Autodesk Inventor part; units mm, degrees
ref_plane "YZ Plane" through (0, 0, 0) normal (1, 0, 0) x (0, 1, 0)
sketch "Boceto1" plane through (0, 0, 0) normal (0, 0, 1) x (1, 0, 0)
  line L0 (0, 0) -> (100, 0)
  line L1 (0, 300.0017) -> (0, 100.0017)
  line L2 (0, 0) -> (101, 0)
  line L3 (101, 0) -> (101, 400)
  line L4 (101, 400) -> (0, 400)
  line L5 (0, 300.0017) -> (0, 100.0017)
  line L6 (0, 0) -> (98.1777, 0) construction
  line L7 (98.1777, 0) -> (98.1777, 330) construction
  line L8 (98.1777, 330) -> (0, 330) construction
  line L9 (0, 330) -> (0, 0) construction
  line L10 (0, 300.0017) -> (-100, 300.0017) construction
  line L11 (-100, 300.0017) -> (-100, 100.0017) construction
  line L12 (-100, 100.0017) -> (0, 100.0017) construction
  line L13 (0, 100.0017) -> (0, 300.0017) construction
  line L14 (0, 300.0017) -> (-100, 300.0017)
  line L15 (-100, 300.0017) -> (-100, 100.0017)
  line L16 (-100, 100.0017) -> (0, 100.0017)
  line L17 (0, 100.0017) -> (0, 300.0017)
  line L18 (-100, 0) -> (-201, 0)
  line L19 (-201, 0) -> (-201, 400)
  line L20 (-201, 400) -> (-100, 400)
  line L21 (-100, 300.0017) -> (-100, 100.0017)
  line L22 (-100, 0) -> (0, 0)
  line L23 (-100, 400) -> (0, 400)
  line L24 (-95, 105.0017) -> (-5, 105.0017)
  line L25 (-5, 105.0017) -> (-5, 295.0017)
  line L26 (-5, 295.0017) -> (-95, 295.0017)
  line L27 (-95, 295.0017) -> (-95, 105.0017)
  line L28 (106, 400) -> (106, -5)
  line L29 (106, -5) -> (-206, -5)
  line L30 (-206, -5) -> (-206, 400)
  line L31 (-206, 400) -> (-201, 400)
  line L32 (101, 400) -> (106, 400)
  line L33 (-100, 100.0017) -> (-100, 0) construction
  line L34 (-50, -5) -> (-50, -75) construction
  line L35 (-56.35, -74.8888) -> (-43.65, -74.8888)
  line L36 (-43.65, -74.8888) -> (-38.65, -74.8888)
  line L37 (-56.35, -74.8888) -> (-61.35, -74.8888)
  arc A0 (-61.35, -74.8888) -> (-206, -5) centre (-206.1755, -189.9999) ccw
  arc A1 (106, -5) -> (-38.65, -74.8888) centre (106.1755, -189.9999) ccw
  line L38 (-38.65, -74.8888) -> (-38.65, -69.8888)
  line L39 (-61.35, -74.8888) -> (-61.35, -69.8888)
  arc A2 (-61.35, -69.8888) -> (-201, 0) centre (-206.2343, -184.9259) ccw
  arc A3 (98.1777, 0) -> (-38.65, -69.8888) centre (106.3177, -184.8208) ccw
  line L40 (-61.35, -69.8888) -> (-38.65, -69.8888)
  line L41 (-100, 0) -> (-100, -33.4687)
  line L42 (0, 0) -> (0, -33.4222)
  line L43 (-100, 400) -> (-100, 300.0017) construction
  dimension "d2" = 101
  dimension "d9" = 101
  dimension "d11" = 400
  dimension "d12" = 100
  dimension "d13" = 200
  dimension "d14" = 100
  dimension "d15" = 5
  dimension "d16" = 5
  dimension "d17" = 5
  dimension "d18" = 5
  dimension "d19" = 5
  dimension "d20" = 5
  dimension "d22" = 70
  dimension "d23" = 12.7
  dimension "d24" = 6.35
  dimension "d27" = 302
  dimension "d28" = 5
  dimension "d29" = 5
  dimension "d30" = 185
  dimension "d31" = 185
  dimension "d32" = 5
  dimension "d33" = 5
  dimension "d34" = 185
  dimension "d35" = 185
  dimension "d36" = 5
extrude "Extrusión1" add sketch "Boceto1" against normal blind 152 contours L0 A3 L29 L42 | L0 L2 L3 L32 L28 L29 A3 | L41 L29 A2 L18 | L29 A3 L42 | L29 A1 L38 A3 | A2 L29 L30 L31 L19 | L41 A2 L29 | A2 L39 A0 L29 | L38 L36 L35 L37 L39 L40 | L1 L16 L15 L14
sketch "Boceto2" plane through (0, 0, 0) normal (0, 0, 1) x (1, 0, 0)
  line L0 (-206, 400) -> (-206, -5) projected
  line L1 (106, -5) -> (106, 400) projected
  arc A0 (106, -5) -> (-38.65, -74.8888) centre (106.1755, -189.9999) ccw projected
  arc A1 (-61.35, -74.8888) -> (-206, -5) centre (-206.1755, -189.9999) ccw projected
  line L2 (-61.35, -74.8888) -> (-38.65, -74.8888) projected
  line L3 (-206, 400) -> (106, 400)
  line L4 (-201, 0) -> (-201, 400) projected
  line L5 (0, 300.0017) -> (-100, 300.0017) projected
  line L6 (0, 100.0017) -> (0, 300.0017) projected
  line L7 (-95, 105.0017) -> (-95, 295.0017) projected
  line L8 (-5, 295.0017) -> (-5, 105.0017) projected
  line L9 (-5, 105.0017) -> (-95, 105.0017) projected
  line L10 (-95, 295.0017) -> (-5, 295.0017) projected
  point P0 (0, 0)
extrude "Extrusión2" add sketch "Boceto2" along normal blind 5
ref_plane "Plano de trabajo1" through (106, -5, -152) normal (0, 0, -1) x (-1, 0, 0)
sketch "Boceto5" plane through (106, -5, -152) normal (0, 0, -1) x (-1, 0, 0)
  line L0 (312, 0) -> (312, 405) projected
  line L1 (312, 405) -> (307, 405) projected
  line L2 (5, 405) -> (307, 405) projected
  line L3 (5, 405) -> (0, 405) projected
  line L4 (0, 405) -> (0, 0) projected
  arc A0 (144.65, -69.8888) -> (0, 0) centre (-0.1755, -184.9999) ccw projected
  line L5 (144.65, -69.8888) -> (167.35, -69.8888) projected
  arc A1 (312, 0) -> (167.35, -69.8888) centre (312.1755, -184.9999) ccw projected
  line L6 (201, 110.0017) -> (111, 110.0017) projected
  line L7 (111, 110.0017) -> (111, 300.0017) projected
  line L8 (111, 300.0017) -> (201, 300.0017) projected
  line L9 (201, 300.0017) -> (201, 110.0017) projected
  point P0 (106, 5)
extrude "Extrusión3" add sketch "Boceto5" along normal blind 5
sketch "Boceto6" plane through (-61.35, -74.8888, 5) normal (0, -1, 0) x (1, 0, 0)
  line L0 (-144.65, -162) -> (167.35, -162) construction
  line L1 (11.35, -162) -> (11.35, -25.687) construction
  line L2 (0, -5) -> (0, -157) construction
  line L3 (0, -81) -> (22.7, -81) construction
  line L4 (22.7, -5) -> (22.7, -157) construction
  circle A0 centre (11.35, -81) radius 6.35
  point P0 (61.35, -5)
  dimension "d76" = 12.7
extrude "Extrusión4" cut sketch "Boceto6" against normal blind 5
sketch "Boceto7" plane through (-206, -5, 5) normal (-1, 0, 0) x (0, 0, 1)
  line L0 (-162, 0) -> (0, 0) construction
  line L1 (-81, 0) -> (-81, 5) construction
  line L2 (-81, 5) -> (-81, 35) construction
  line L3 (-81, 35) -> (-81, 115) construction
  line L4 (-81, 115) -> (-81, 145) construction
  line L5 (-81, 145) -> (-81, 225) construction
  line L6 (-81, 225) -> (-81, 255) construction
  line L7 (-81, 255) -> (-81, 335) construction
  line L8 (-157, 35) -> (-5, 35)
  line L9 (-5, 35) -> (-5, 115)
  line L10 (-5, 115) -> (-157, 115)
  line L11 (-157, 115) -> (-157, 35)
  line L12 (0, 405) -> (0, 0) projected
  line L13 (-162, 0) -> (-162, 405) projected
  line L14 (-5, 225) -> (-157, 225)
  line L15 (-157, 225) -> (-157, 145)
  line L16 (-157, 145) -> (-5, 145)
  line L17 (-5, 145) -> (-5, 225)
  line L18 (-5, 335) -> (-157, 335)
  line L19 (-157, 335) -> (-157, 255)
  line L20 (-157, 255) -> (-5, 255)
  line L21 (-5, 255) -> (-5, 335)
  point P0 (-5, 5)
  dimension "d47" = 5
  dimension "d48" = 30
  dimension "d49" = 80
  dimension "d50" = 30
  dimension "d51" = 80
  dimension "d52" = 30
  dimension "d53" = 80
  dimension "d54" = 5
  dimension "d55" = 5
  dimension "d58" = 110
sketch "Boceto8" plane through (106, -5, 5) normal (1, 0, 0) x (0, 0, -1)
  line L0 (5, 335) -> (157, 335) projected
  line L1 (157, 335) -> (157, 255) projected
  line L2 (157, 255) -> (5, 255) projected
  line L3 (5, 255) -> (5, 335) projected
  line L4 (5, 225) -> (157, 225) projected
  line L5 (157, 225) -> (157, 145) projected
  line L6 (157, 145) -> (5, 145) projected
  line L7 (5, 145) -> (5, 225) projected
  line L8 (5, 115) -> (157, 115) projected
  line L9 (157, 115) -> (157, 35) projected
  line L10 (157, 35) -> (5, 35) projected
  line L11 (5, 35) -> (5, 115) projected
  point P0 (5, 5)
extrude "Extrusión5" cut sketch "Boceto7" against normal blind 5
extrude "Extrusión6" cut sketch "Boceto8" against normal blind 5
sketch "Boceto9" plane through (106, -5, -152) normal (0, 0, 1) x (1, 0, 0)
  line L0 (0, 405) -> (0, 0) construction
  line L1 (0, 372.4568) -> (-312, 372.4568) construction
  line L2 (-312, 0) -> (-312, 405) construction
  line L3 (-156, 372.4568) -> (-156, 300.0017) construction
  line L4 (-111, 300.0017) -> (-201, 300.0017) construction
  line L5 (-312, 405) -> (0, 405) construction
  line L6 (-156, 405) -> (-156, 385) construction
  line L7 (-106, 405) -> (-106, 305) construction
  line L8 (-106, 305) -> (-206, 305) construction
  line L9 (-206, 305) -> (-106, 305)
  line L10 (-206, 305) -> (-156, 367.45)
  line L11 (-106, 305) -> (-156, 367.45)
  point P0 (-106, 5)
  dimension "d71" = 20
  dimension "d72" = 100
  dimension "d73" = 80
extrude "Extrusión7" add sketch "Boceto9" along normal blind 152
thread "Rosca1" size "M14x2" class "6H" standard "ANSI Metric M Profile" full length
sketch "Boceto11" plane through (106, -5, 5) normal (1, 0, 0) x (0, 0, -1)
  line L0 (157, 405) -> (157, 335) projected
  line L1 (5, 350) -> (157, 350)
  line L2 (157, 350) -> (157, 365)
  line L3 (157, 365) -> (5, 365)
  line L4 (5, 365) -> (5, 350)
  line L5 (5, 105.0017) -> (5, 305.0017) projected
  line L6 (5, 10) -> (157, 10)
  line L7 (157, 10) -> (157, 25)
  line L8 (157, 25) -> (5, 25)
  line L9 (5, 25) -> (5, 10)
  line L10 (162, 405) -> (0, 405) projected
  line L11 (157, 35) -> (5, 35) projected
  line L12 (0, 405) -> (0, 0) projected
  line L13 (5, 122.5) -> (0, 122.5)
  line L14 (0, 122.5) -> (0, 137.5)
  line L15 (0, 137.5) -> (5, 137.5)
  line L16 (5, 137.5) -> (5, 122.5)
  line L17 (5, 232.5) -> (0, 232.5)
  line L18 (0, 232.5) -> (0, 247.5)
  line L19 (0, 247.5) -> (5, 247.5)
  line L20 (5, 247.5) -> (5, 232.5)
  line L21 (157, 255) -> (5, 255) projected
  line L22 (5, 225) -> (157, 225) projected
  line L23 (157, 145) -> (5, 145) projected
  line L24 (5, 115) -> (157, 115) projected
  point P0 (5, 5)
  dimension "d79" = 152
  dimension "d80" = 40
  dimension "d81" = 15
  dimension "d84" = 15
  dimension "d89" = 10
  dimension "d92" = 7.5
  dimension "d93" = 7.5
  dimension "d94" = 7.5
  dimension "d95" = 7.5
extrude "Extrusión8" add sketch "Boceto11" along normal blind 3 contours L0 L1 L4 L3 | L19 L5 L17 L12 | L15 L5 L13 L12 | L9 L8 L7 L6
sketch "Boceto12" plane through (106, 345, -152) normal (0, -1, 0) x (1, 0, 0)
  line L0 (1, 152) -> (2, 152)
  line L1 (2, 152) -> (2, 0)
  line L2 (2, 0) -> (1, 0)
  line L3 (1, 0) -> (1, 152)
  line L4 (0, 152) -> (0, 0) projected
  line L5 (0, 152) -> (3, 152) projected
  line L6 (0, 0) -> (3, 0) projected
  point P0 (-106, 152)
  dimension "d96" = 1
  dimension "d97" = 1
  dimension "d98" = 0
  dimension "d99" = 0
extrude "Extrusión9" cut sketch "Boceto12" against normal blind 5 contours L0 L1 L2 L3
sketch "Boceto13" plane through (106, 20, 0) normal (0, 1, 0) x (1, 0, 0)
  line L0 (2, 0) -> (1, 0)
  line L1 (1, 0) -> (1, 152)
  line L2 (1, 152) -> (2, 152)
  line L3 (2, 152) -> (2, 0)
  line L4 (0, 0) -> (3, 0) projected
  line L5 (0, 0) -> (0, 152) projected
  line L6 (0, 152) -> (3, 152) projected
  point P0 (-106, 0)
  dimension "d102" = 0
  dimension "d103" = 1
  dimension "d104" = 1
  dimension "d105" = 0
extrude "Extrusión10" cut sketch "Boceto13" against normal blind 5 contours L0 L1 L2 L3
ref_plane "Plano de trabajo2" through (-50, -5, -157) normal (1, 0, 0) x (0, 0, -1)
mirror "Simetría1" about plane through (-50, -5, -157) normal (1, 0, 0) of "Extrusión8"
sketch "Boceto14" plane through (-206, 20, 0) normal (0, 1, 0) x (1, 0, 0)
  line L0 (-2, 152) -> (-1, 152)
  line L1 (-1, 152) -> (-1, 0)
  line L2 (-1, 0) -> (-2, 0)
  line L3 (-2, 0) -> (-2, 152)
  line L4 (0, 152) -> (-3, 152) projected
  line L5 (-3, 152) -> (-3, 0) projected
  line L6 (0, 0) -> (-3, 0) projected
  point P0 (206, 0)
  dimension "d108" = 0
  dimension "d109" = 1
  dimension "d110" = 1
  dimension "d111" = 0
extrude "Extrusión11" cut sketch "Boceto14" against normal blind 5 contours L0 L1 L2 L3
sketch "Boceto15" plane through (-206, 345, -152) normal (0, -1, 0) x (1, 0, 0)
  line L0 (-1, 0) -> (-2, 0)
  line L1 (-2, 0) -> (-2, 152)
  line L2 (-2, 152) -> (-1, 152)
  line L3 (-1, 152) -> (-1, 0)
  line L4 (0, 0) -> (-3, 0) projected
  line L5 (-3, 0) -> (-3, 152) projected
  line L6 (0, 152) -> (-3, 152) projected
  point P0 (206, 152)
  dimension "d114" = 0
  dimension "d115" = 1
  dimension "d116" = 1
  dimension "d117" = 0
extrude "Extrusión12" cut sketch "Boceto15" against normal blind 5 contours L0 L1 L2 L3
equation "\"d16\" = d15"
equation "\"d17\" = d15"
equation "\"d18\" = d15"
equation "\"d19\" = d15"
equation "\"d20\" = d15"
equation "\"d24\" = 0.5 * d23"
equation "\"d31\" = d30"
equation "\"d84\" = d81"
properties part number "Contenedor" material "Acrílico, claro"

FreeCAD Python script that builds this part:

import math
import FreeCAD as App
import Part
import Sketcher

V = App.Vector

doc = App.newDocument("Part")
body = doc.addObject("PartDesign::Body", "Body")
body.AllowCompound = True

# Sketch on XY plane
sketch1 = body.newObject("Sketcher::SketchObject", "Sketch")
sketch1.AttachmentSupport = (doc.getObject("XY_Plane"), [""])
sketch1.MapMode = "FlatFace"
sketch1.addGeometry(Part.LineSegment(V(0, 0, 0), V(0, -33, 0)), False)
sketch1.addGeometry(Part.ArcOfCircle(Part.Circle(V(106, -185, 0), V(0, 0, 1), 185), math.radians(125.08), math.radians(141.59)), False)
sketch1.addGeometry(Part.LineSegment(V(-39, -70, 0), V(-61, -70, 0)), False)
sketch1.addGeometry(Part.ArcOfCircle(Part.Circle(V(-206, -185, 0), V(0, 0, 1), 185), math.radians(38.45), math.radians(54.95)), False)
sketch1.addGeometry(Part.LineSegment(V(-100, -33, 0), V(-100, 0, 0)), False)
sketch1.addGeometry(Part.LineSegment(V(-100, 0, 0), V(-201, 0, 0)), False)
sketch1.addGeometry(Part.LineSegment(V(-201, 0, 0), V(-201, 400, 0)), False)
sketch1.addGeometry(Part.LineSegment(V(-201, 400, 0), V(-206, 400, 0)), False)
sketch1.addGeometry(Part.LineSegment(V(-206, 400, 0), V(-206, -5, 0)), False)
sketch1.addGeometry(Part.ArcOfCircle(Part.Circle(V(-206, -190, 0), V(0, 0, 1), 185), math.radians(38), math.radians(90)), False)
sketch1.addGeometry(Part.LineSegment(V(-61, -75, 0), V(-39, -75, 0)), False)
sketch1.addGeometry(Part.ArcOfCircle(Part.Circle(V(106, -190, 0), V(0, 0, 1), 185), math.radians(90), math.radians(142)), False)
sketch1.addGeometry(Part.LineSegment(V(106, -5, 0), V(106, 400, 0)), False)
sketch1.addGeometry(Part.LineSegment(V(106, 400, 0), V(101, 400, 0)), False)
sketch1.addGeometry(Part.LineSegment(V(101, 400, 0), V(101, 0, 0)), False)
sketch1.addGeometry(Part.LineSegment(V(101, 0, 0), V(0, 0, 0)), False)
sketch1.addGeometry(Part.LineSegment(V(0, 100, 0), V(0, 300, 0)), False)
sketch1.addGeometry(Part.LineSegment(V(0, 300, 0), V(-100, 300, 0)), False)
sketch1.addGeometry(Part.LineSegment(V(-100, 300, 0), V(-100, 100, 0)), False)
sketch1.addGeometry(Part.LineSegment(V(-100, 100, 0), V(0, 100, 0)), False)
sketch1.addGeometry(Part.LineSegment(V(-5, 105, 0), V(-95, 105, 0)), False)
sketch1.addGeometry(Part.LineSegment(V(-95, 105, 0), V(-95, 295, 0)), False)
sketch1.addGeometry(Part.LineSegment(V(-95, 295, 0), V(-5, 295, 0)), False)
sketch1.addGeometry(Part.LineSegment(V(-5, 295, 0), V(-5, 105, 0)), False)
sketch1.addConstraint(Sketcher.Constraint("Coincident", 0, 2, 1, 1))
sketch1.addConstraint(Sketcher.Constraint("Coincident", 1, 2, 2, 1))
sketch1.addConstraint(Sketcher.Constraint("Coincident", 2, 2, 3, 1))
sketch1.addConstraint(Sketcher.Constraint("Coincident", 3, 2, 4, 1))
sketch1.addConstraint(Sketcher.Constraint("Coincident", 4, 2, 5, 1))
sketch1.addConstraint(Sketcher.Constraint("Coincident", 5, 2, 6, 1))
sketch1.addConstraint(Sketcher.Constraint("Coincident", 6, 2, 7, 1))
sketch1.addConstraint(Sketcher.Constraint("Coincident", 7, 2, 8, 1))
sketch1.addConstraint(Sketcher.Constraint("Coincident", 8, 2, 9, 2))
sketch1.addConstraint(Sketcher.Constraint("Coincident", 9, 1, 10, 1))
sketch1.addConstraint(Sketcher.Constraint("Coincident", 10, 2, 11, 2))
sketch1.addConstraint(Sketcher.Constraint("Coincident", 11, 1, 12, 1))
sketch1.addConstraint(Sketcher.Constraint("Coincident", 12, 2, 13, 1))
sketch1.addConstraint(Sketcher.Constraint("Coincident", 13, 2, 14, 1))
sketch1.addConstraint(Sketcher.Constraint("Coincident", 14, 2, 15, 1))
sketch1.addConstraint(Sketcher.Constraint("Coincident", 15, 2, 0, 1))
sketch1.addConstraint(Sketcher.Constraint("Coincident", 16, 2, 17, 1))
sketch1.addConstraint(Sketcher.Constraint("Coincident", 17, 2, 18, 1))
sketch1.addConstraint(Sketcher.Constraint("Coincident", 18, 2, 19, 1))
sketch1.addConstraint(Sketcher.Constraint("Coincident", 19, 2, 16, 1))
sketch1.addConstraint(Sketcher.Constraint("Coincident", 20, 2, 21, 1))
sketch1.addConstraint(Sketcher.Constraint("Coincident", 21, 2, 22, 1))
sketch1.addConstraint(Sketcher.Constraint("Coincident", 22, 2, 23, 1))
sketch1.addConstraint(Sketcher.Constraint("Coincident", 23, 2, 20, 1))
sketch1.addConstraint(Sketcher.Constraint("Vertical", 0))
sketch1.addConstraint(Sketcher.Constraint("Horizontal", 2))
sketch1.addConstraint(Sketcher.Constraint("Vertical", 4))
sketch1.addConstraint(Sketcher.Constraint("Horizontal", 5))
sketch1.addConstraint(Sketcher.Constraint("Vertical", 6))
sketch1.addConstraint(Sketcher.Constraint("Horizontal", 7))
sketch1.addConstraint(Sketcher.Constraint("Vertical", 8))
sketch1.addConstraint(Sketcher.Constraint("Horizontal", 10))
sketch1.addConstraint(Sketcher.Constraint("Vertical", 12))
sketch1.addConstraint(Sketcher.Constraint("Horizontal", 13))
sketch1.addConstraint(Sketcher.Constraint("Vertical", 14))
sketch1.addConstraint(Sketcher.Constraint("Horizontal", 15))
sketch1.addConstraint(Sketcher.Constraint("Vertical", 16))
sketch1.addConstraint(Sketcher.Constraint("Horizontal", 17))
sketch1.addConstraint(Sketcher.Constraint("Vertical", 18))
sketch1.addConstraint(Sketcher.Constraint("Horizontal", 19))
sketch1.addConstraint(Sketcher.Constraint("Horizontal", 20))
sketch1.addConstraint(Sketcher.Constraint("Vertical", 21))
sketch1.addConstraint(Sketcher.Constraint("Horizontal", 22))
sketch1.addConstraint(Sketcher.Constraint("Vertical", 23))
sketch1.addConstraint(Sketcher.Constraint("Coincident", 15, 2, -1, 1))
sketch1.addConstraint(Sketcher.Constraint("Equal", 1, 3))
sketch1.addConstraint(Sketcher.Constraint("Equal", 3, 9))
sketch1.addConstraint(Sketcher.Constraint("Equal", 9, 11))
sketch1.addConstraint(Sketcher.Constraint("PointOnObject", 4, 2, -1))
sketch1.addConstraint(Sketcher.Constraint("PointOnObject", 16, 2, -2))
sketch1.addConstraint(Sketcher.Constraint("Horizontal", 9, 3, 11, 3))
sketch1.addConstraint(Sketcher.Constraint("Horizontal", 7, 2, 12, 2))
sketch1.addConstraint(Sketcher.Constraint("Vertical", 2, 2, 9, 1))
sketch1.addConstraint(Sketcher.Constraint("Vertical", 1, 2, 10, 2))
sketch1.addConstraint(Sketcher.Constraint("Vertical", 4, 2, 17, 2))
sketch1.addConstraint(Sketcher.Constraint("Equal", 7, 13))
sketch1.addConstraint(Sketcher.Constraint("Equal", 5, 15))
sketch1.addConstraint(Sketcher.Constraint("Radius", 1, 185.0))
sketch1.addConstraint(Sketcher.Constraint("DistanceX", 5, 2, 5, 1, 101.0))
sketch1.addConstraint(Sketcher.Constraint("DistanceX", 7, 2, 7, 1, 5.0))
sketch1.addConstraint(Sketcher.Constraint("DistanceX", 17, 2, 17, 1, 100.0))
sketch1.addConstraint(Sketcher.Constraint("DistanceY", 6, 1, 6, 2, 400.0))
sketch1.addConstraint(Sketcher.Constraint("DistanceY", 16, 1, 16, 2, 200.0))
sketch1.addConstraint(Sketcher.Constraint("DistanceY", 8, 2, -1, 1, 5.0))
sketch1.addConstraint(Sketcher.Constraint("DistanceX", 22, 2, -1, 1, 5.0))
sketch1.addConstraint(Sketcher.Constraint("DistanceY", 9, 1, 2, 2, 5.0))
sketch1.addConstraint(Sketcher.Constraint("DistanceX", 18, 2, 20, 2, 5.0))
sketch1.addConstraint(Sketcher.Constraint("DistanceY", 18, 2, 20, 2, 5.0))
sketch1.addConstraint(Sketcher.Constraint("DistanceY", 21, 2, 17, 2, 5.0))
sketch1.addConstraint(Sketcher.Constraint("DistanceX", 2, 2, 2, 1, 22.7))
sketch1.addConstraint(Sketcher.Constraint("DistanceX", 1, 2, -1, 1, 38.65))
sketch1.addConstraint(Sketcher.Constraint("DistanceY", 2, 2, 3, 2, 36.42))
sketch1.addConstraint(Sketcher.Constraint("DistanceY", 0, 2, 0, 1, 33.4222))
sketch1.addConstraint(Sketcher.Constraint("DistanceY", 4, 1, 4, 2, 33.4687))
sketch1.addConstraint(Sketcher.Constraint("DistanceY", 0, 2, 19, 2, 133.424))
pad1 = body.newObject("PartDesign::Pad", "Pad")
pad1.Profile = sketch1
pad1.Length = 152
pad1.Reversed = True

# Sketch on XY plane
sketch2 = body.newObject("Sketcher::SketchObject", "Sketch001")
sketch2.AttachmentSupport = (doc.getObject("XY_Plane"), [""])
sketch2.MapMode = "FlatFace"
sketch2.addGeometry(Part.LineSegment(V(106, 400, 0), V(-206, 400, 0)), False)
sketch2.addGeometry(Part.LineSegment(V(-206, 400, 0), V(-206, -5, 0)), False)
sketch2.addGeometry(Part.ArcOfCircle(Part.Circle(V(-206, -190, 0), V(0, 0, 1), 185), math.radians(38), math.radians(90)), False)
sketch2.addGeometry(Part.LineSegment(V(-61, -75, 0), V(-39, -75, 0)), False)
sketch2.addGeometry(Part.ArcOfCircle(Part.Circle(V(106, -190, 0), V(0, 0, 1), 185), math.radians(90), math.radians(142)), False)
sketch2.addGeometry(Part.LineSegment(V(106, -5, 0), V(106, 400, 0)), False)
sketch2.addGeometry(Part.LineSegment(V(-5, 105, 0), V(-95, 105, 0)), False)
sketch2.addGeometry(Part.LineSegment(V(-95, 105, 0), V(-95, 295, 0)), False)
sketch2.addGeometry(Part.LineSegment(V(-95, 295, 0), V(-5, 295, 0)), False)
sketch2.addGeometry(Part.LineSegment(V(-5, 295, 0), V(-5, 105, 0)), False)
sketch2.addConstraint(Sketcher.Constraint("Coincident", 0, 2, 1, 1))
sketch2.addConstraint(Sketcher.Constraint("Coincident", 1, 2, 2, 2))
sketch2.addConstraint(Sketcher.Constraint("Coincident", 2, 1, 3, 1))
sketch2.addConstraint(Sketcher.Constraint("Coincident", 3, 2, 4, 2))
sketch2.addConstraint(Sketcher.Constraint("Coincident", 4, 1, 5, 1))
sketch2.addConstraint(Sketcher.Constraint("Coincident", 5, 2, 0, 1))
sketch2.addConstraint(Sketcher.Constraint("Coincident", 6, 2, 7, 1))
sketch2.addConstraint(Sketcher.Constraint("Coincident", 7, 2, 8, 1))
sketch2.addConstraint(Sketcher.Constraint("Coincident", 8, 2, 9, 1))
sketch2.addConstraint(Sketcher.Constraint("Coincident", 9, 2, 6, 1))
sketch2.addConstraint(Sketcher.Constraint("Horizontal", 0))
sketch2.addConstraint(Sketcher.Constraint("Vertical", 1))
sketch2.addConstraint(Sketcher.Constraint("Horizontal", 3))
sketch2.addConstraint(Sketcher.Constraint("Vertical", 5))
sketch2.addConstraint(Sketcher.Constraint("Horizontal", 6))
sketch2.addConstraint(Sketcher.Constraint("Vertical", 7))
sketch2.addConstraint(Sketcher.Constraint("Horizontal", 8))
sketch2.addConstraint(Sketcher.Constraint("Vertical", 9))
sketch2.addConstraint(Sketcher.Constraint("Equal", 2, 4))
sketch2.addConstraint(Sketcher.Constraint("Horizontal", 2, 3, 4, 3))
sketch2.addConstraint(Sketcher.Constraint("Radius", 2, 185.0))
sketch2.addConstraint(Sketcher.Constraint("DistanceX", 0, 2, 0, 1, 312.0))
sketch2.addConstraint(Sketcher.Constraint("DistanceX", 6, 2, 6, 1, 90.0))
sketch2.addConstraint(Sketcher.Constraint("DistanceY", 1, 2, 1, 1, 405.0))
sketch2.addConstraint(Sketcher.Constraint("DistanceY", 7, 1, 7, 2, 190.0))
sketch2.addConstraint(Sketcher.Constraint("DistanceX", 3, 1, 3, 2, 22.7))
sketch2.addConstraint(Sketcher.Constraint("DistanceY", 2, 3, -1, 1, 190.0))
sketch2.addConstraint(Sketcher.Constraint("DistanceX", 0, 2, -1, 1, 206.0))
sketch2.addConstraint(Sketcher.Constraint("DistanceX", 6, 2, -1, 1, 95.0))
sketch2.addConstraint(Sketcher.Constraint("DistanceX", 2, 1, -1, 1, 61.35))
sketch2.addConstraint(Sketcher.Constraint("DistanceX", 2, 3, 4, 3, 312.351))
sketch2.addConstraint(Sketcher.Constraint("DistanceY", -1, 1, 6, 2, 105.0017))
pad2 = body.newObject("PartDesign::Pad", "Pad001")
pad2.Profile = sketch2
pad2.Length = 5

# Sketch on XY plane
sketch3 = body.newObject("Sketcher::SketchObject", "Sketch002")
sketch3.AttachmentSupport = (doc.getObject("XY_Plane"), [""])
sketch3.MapMode = "FlatFace"
sketch3.AttachmentOffset = App.Placement(V(0, 0, -152), App.Rotation())
sketch3.addGeometry(Part.ArcOfCircle(Part.Circle(V(-206, -190, 0), V(0, 0, 1), 185), math.radians(38), math.radians(90)), False)
sketch3.addGeometry(Part.LineSegment(V(-206, -5, 0), V(-206, 400, 0)), False)
sketch3.addGeometry(Part.LineSegment(V(-206, 400, 0), V(106, 400, 0)), False)
sketch3.addGeometry(Part.LineSegment(V(106, 400, 0), V(106, -5, 0)), False)
sketch3.addGeometry(Part.ArcOfCircle(Part.Circle(V(106, -190, 0), V(0, 0, 1), 185), math.radians(90), math.radians(142)), False)
sketch3.addGeometry(Part.LineSegment(V(-39, -75, 0), V(-61, -75, 0)), False)
sketch3.addGeometry(Part.LineSegment(V(-95, 295, 0), V(-95, 105, 0)), False)
sketch3.addGeometry(Part.LineSegment(V(-95, 105, 0), V(-5, 105, 0)), False)
sketch3.addGeometry(Part.LineSegment(V(-5, 105, 0), V(-5, 295, 0)), False)
sketch3.addGeometry(Part.LineSegment(V(-5, 295, 0), V(-95, 295, 0)), False)
sketch3.addConstraint(Sketcher.Constraint("Coincident", 0, 2, 1, 1))
sketch3.addConstraint(Sketcher.Constraint("Coincident", 1, 2, 2, 1))
sketch3.addConstraint(Sketcher.Constraint("Coincident", 2, 2, 3, 1))
sketch3.addConstraint(Sketcher.Constraint("Coincident", 3, 2, 4, 1))
sketch3.addConstraint(Sketcher.Constraint("Coincident", 4, 2, 5, 1))
sketch3.addConstraint(Sketcher.Constraint("Coincident", 5, 2, 0, 1))
sketch3.addConstraint(Sketcher.Constraint("Coincident", 6, 2, 7, 1))
sketch3.addConstraint(Sketcher.Constraint("Coincident", 7, 2, 8, 1))
sketch3.addConstraint(Sketcher.Constraint("Coincident", 8, 2, 9, 1))
sketch3.addConstraint(Sketcher.Constraint("Coincident", 9, 2, 6, 1))
sketch3.addConstraint(Sketcher.Constraint("Vertical", 1))
sketch3.addConstraint(Sketcher.Constraint("Horizontal", 2))
sketch3.addConstraint(Sketcher.Constraint("Vertical", 3))
sketch3.addConstraint(Sketcher.Constraint("Horizontal", 5))
sketch3.addConstraint(Sketcher.Constraint("Vertical", 6))
sketch3.addConstraint(Sketcher.Constraint("Horizontal", 7))
sketch3.addConstraint(Sketcher.Constraint("Vertical", 8))
sketch3.addConstraint(Sketcher.Constraint("Horizontal", 9))
sketch3.addConstraint(Sketcher.Constraint("Equal", 0, 4))
sketch3.addConstraint(Sketcher.Constraint("Horizontal", 0, 3, 4, 3))
sketch3.addConstraint(Sketcher.Constraint("Radius", 0, 185.0))
sketch3.addConstraint(Sketcher.Constraint("DistanceX", 2, 1, 2, 2, 312.0))
sketch3.addConstraint(Sketcher.Constraint("DistanceX", 7, 1, 7, 2, 90.0))
sketch3.addConstraint(Sketcher.Constraint("DistanceY", 1, 1, 1, 2, 405.0))
sketch3.addConstraint(Sketcher.Constraint("DistanceY", 6, 2, 6, 1, 190.0))
sketch3.addConstraint(Sketcher.Constraint("DistanceX", 5, 2, 5, 1, 22.7))
sketch3.addConstraint(Sketcher.Constraint("DistanceY", 0, 3, -1, 1, 190.0))
sketch3.addConstraint(Sketcher.Constraint("DistanceX", 0, 2, -1, 1, 206.0))
sketch3.addConstraint(Sketcher.Constraint("DistanceX", 6, 2, -1, 1, 95.0))
sketch3.addConstraint(Sketcher.Constraint("DistanceX", 4, 2, -1, 1, 38.65))
sketch3.addConstraint(Sketcher.Constraint("DistanceX", 0, 3, 4, 3, 312.351))
sketch3.addConstraint(Sketcher.Constraint("DistanceY", -1, 1, 6, 2, 105.0017))
pad3 = body.newObject("PartDesign::Pad", "Pad002")
pad3.Profile = sketch3
pad3.Length = 5
pad3.Reversed = True

# Sketch on XZ plane
sketch4 = body.newObject("Sketcher::SketchObject", "Sketch003")
sketch4.AttachmentSupport = (doc.getObject("XZ_Plane"), [""])
sketch4.MapMode = "FlatFace"
sketch4.AttachmentOffset = App.Placement(V(0, 0, 74.8888), App.Rotation())
sketch4.addGeometry(Part.Circle(V(-50, -76, 0), V(0, 0, 1), 6), False)
sketch4.addConstraint(Sketcher.Constraint("Diameter", 0, 12.7))
sketch4.addConstraint(Sketcher.Constraint("DistanceX", 0, 3, -1, 1, 50.0))
sketch4.addConstraint(Sketcher.Constraint("DistanceY", 0, 3, -1, 1, 76.0))
pocket1 = body.newObject("PartDesign::Pocket", "Pocket")
pocket1.Profile = sketch4
pocket1.Length = 5

# Sketch on YZ plane
sketch5 = body.newObject("Sketcher::SketchObject", "Sketch004")
sketch5.AttachmentSupport = (doc.getObject("YZ_Plane"), [""])
sketch5.MapMode = "FlatFace"
sketch5.AttachmentOffset = App.Placement(V(0, 0, -206), App.Rotation())
sketch5.addGeometry(Part.LineSegment(V(110, -152, 0), V(30, -152, 0)), False)
sketch5.addGeometry(Part.LineSegment(V(30, -152, 0), V(30, 0, 0)), False)
sketch5.addGeometry(Part.LineSegment(V(30, 0, 0), V(110, 0, 0)), False)
sketch5.addGeometry(Part.LineSegment(V(110, 0, 0), V(110, -152, 0)), False)
sketch5.addGeometry(Part.LineSegment(V(140, 0, 0), V(220, 0, 0)), False)
sketch5.addGeometry(Part.LineSegment(V(220, 0, 0), V(220, -152, 0)), False)
sketch5.addGeometry(Part.LineSegment(V(220, -152, 0), V(140, -152, 0)), False)
sketch5.addGeometry(Part.LineSegment(V(140, -152, 0), V(140, 0, 0)), False)
sketch5.addGeometry(Part.LineSegment(V(250, 0, 0), V(330, 0, 0)), False)
sketch5.addGeometry(Part.LineSegment(V(330, 0, 0), V(330, -152, 0)), False)
sketch5.addGeometry(Part.LineSegment(V(330, -152, 0), V(250, -152, 0)), False)
sketch5.addGeometry(Part.LineSegment(V(250, -152, 0), V(250, 0, 0)), False)
sketch5.addConstraint(Sketcher.Constraint("Coincident", 0, 2, 1, 1))
sketch5.addConstraint(Sketcher.Constraint("Coincident", 1, 2, 2, 1))
sketch5.addConstraint(Sketcher.Constraint("Coincident", 2, 2, 3, 1))
sketch5.addConstraint(Sketcher.Constraint("Coincident", 3, 2, 0, 1))
sketch5.addConstraint(Sketcher.Constraint("Coincident", 4, 2, 5, 1))
sketch5.addConstraint(Sketcher.Constraint("Coincident", 5, 2, 6, 1))
sketch5.addConstraint(Sketcher.Constraint("Coincident", 6, 2, 7, 1))
sketch5.addConstraint(Sketcher.Constraint("Coincident", 7, 2, 4, 1))
sketch5.addConstraint(Sketcher.Constraint("Coincident", 8, 2, 9, 1))
sketch5.addConstraint(Sketcher.Constraint("Coincident", 9, 2, 10, 1))
sketch5.addConstraint(Sketcher.Constraint("Coincident", 10, 2, 11, 1))
sketch5.addConstraint(Sketcher.Constraint("Coincident", 11, 2, 8, 1))
sketch5.addConstraint(Sketcher.Constraint("Horizontal", 0))
sketch5.addConstraint(Sketcher.Constraint("Vertical", 1))
sketch5.addConstraint(Sketcher.Constraint("Horizontal", 2))
sketch5.addConstraint(Sketcher.Constraint("Vertical", 3))
sketch5.addConstraint(Sketcher.Constraint("Horizontal", 4))
sketch5.addConstraint(Sketcher.Constraint("Vertical", 5))
sketch5.addConstraint(Sketcher.Constraint("Horizontal", 6))
sketch5.addConstraint(Sketcher.Constraint("Vertical", 7))
sketch5.addConstraint(Sketcher.Constraint("Horizontal", 8))
sketch5.addConstraint(Sketcher.Constraint("Vertical", 9))
sketch5.addConstraint(Sketcher.Constraint("Horizontal", 10))
sketch5.addConstraint(Sketcher.Constraint("Vertical", 11))
sketch5.addConstraint(Sketcher.Constraint("PointOnObject", 1, 2, -1))
sketch5.addConstraint(Sketcher.Constraint("PointOnObject", 4, 2, -1))
sketch5.addConstraint(Sketcher.Constraint("PointOnObject", 8, 2, -1))
sketch5.addConstraint(Sketcher.Constraint("Horizontal", 3, 2, 5, 2))
sketch5.addConstraint(Sketcher.Constraint("Horizontal", 6, 2, 9, 2))
sketch5.addConstraint(Sketcher.Constraint("Equal", 2, 4))
sketch5.addConstraint(Sketcher.Constraint("Equal", 6, 8))
sketch5.addConstraint(Sketcher.Constraint("DistanceX", 0, 2, 0, 1, 80.0))
sketch5.addConstraint(Sketcher.Constraint("DistanceX", -1, 1, 0, 2, 30.0))
sketch5.addConstraint(Sketcher.Constraint("DistanceX", 2, 2, 4, 2, 110.0))
sketch5.addConstraint(Sketcher.Constraint("DistanceX", 4, 2, 8, 2, 110.0))
sketch5.addConstraint(Sketcher.Constraint("DistanceY", 1, 1, 1, 2, 152.0))
pocket2 = body.newObject("PartDesign::Pocket", "Pocket001")
pocket2.Profile = sketch5
pocket2.Length = 5
pocket2.Reversed = True

# Sketch on YZ plane
sketch6 = body.newObject("Sketcher::SketchObject", "Sketch005")
sketch6.AttachmentSupport = (doc.getObject("YZ_Plane"), [""])
sketch6.MapMode = "FlatFace"
sketch6.AttachmentOffset = App.Placement(V(0, 0, 106), App.Rotation())
sketch6.addGeometry(Part.LineSegment(V(330, -152, 0), V(330, 0, 0)), False)
sketch6.addGeometry(Part.LineSegment(V(330, 0, 0), V(250, 0, 0)), False)
sketch6.addGeometry(Part.LineSegment(V(250, 0, 0), V(250, -152, 0)), False)
sketch6.addGeometry(Part.LineSegment(V(250, -152, 0), V(330, -152, 0)), False)
sketch6.addGeometry(Part.LineSegment(V(220, -152, 0), V(220, 0, 0)), False)
sketch6.addGeometry(Part.LineSegment(V(220, 0, 0), V(140, 0, 0)), False)
sketch6.addGeometry(Part.LineSegment(V(140, 0, 0), V(140, -152, 0)), False)
sketch6.addGeometry(Part.LineSegment(V(140, -152, 0), V(220, -152, 0)), False)
sketch6.addGeometry(Part.LineSegment(V(110, -152, 0), V(110, 0, 0)), False)
sketch6.addGeometry(Part.LineSegment(V(110, 0, 0), V(30, 0, 0)), False)
sketch6.addGeometry(Part.LineSegment(V(30, 0, 0), V(30, -152, 0)), False)
sketch6.addGeometry(Part.LineSegment(V(30, -152, 0), V(110, -152, 0)), False)
sketch6.addConstraint(Sketcher.Constraint("Coincident", 0, 2, 1, 1))
sketch6.addConstraint(Sketcher.Constraint("Coincident", 1, 2, 2, 1))
sketch6.addConstraint(Sketcher.Constraint("Coincident", 2, 2, 3, 1))
sketch6.addConstraint(Sketcher.Constraint("Coincident", 3, 2, 0, 1))
sketch6.addConstraint(Sketcher.Constraint("Coincident", 4, 2, 5, 1))
sketch6.addConstraint(Sketcher.Constraint("Coincident", 5, 2, 6, 1))
sketch6.addConstraint(Sketcher.Constraint("Coincident", 6, 2, 7, 1))
sketch6.addConstraint(Sketcher.Constraint("Coincident", 7, 2, 4, 1))
sketch6.addConstraint(Sketcher.Constraint("Coincident", 8, 2, 9, 1))
sketch6.addConstraint(Sketcher.Constraint("Coincident", 9, 2, 10, 1))
sketch6.addConstraint(Sketcher.Constraint("Coincident", 10, 2, 11, 1))
sketch6.addConstraint(Sketcher.Constraint("Coincident", 11, 2, 8, 1))
sketch6.addConstraint(Sketcher.Constraint("Vertical", 0))
sketch6.addConstraint(Sketcher.Constraint("Horizontal", 1))
sketch6.addConstraint(Sketcher.Constraint("Vertical", 2))
sketch6.addConstraint(Sketcher.Constraint("Horizontal", 3))
sketch6.addConstraint(Sketcher.Constraint("Vertical", 4))
sketch6.addConstraint(Sketcher.Constraint("Horizontal", 5))
sketch6.addConstraint(Sketcher.Constraint("Vertical", 6))
sketch6.addConstraint(Sketcher.Constraint("Horizontal", 7))
sketch6.addConstraint(Sketcher.Constraint("Vertical", 8))
sketch6.addConstraint(Sketcher.Constraint("Horizontal", 9))
sketch6.addConstraint(Sketcher.Constraint("Vertical", 10))
sketch6.addConstraint(Sketcher.Constraint("Horizontal", 11))
sketch6.addConstraint(Sketcher.Constraint("PointOnObject", 0, 2, -1))
sketch6.addConstraint(Sketcher.Constraint("PointOnObject", 4, 2, -1))
sketch6.addConstraint(Sketcher.Constraint("PointOnObject", 8, 2, -1))
sketch6.addConstraint(Sketcher.Constraint("Horizontal", 3, 2, 6, 2))
sketch6.addConstraint(Sketcher.Constraint("Horizontal", 7, 2, 10, 2))
sketch6.addConstraint(Sketcher.Constraint("Equal", 3, 5))
sketch6.addConstraint(Sketcher.Constraint("Equal", 7, 9))
sketch6.addConstraint(Sketcher.Constraint("DistanceX", 1, 2, 1, 1, 80.0))
sketch6.addConstraint(Sketcher.Constraint("DistanceY", 0, 1, 0, 2, 152.0))
sketch6.addConstraint(Sketcher.Constraint("DistanceX", -1, 1, 0, 2, 330.0))
sketch6.addConstraint(Sketcher.Constraint("DistanceX", -1, 1, 4, 2, 220.0))
sketch6.addConstraint(Sketcher.Constraint("DistanceX", -1, 1, 8, 2, 110.0))
pocket3 = body.newObject("PartDesign::Pocket", "Pocket002")
pocket3.Profile = sketch6
pocket3.Length = 5

# Sketch on XY plane
sketch7 = body.newObject("Sketcher::SketchObject", "Sketch006")
sketch7.AttachmentSupport = (doc.getObject("XY_Plane"), [""])
sketch7.MapMode = "FlatFace"
sketch7.AttachmentOffset = App.Placement(V(0, 0, -152), App.Rotation())
sketch7.addGeometry(Part.LineSegment(V(-50, 362, 0), V(-100, 300, 0)), False)
sketch7.addGeometry(Part.LineSegment(V(-100, 300, 0), V(0, 300, 0)), False)
sketch7.addGeometry(Part.LineSegment(V(0, 300, 0), V(-50, 362, 0)), False)
sketch7.addConstraint(Sketcher.Constraint("Coincident", 0, 2, 1, 1))
sketch7.addConstraint(Sketcher.Constraint("Coincident", 1, 2, 2, 1))
sketch7.addConstraint(Sketcher.Constraint("Coincident", 2, 2, 0, 1))
sketch7.addConstraint(Sketcher.Constraint("Horizontal", 1))
sketch7.addConstraint(Sketcher.Constraint("PointOnObject", 1, 2, -2))
sketch7.addConstraint(Sketcher.Constraint("Equal", 0, 2))
sketch7.addConstraint(Sketcher.Constraint("DistanceX", 1, 1, 1, 2, 100.0))
sketch7.addConstraint(Sketcher.Constraint("Distance", 0, 80.0))
sketch7.addConstraint(Sketcher.Constraint("DistanceY", -1, 1, 0, 2, 300.0))
pad4 = body.newObject("PartDesign::Pad", "Pad003")
pad4.Profile = sketch7
pad4.Length = 152

# Sketch on YZ plane
sketch8 = body.newObject("Sketcher::SketchObject", "Sketch007")
sketch8.AttachmentSupport = (doc.getObject("YZ_Plane"), [""])
sketch8.MapMode = "FlatFace"
sketch8.AttachmentOffset = App.Placement(V(0, 0, 106), App.Rotation())
sketch8.addGeometry(Part.LineSegment(V(345, -152, 0), V(360, -152, 0)), False)
sketch8.addGeometry(Part.LineSegment(V(360, -152, 0), V(360, 0, 0)), False)
sketch8.addGeometry(Part.LineSegment(V(360, 0, 0), V(345, 0, 0)), False)
sketch8.addGeometry(Part.LineSegment(V(345, 0, 0), V(345, -152, 0)), False)
sketch8.addGeometry(Part.LineSegment(V(242, 0, 0), V(242, 5, 0)), False)
sketch8.addGeometry(Part.LineSegment(V(242, 5, 0), V(228, 5, 0)), False)
sketch8.addGeometry(Part.LineSegment(V(228, 5, 0), V(228, 0, 0)), False)
sketch8.addGeometry(Part.LineSegment(V(228, 0, 0), V(242, 0, 0)), False)
sketch8.addGeometry(Part.LineSegment(V(132, 0, 0), V(132, 5, 0)), False)
sketch8.addGeometry(Part.LineSegment(V(132, 5, 0), V(118, 5, 0)), False)
sketch8.addGeometry(Part.LineSegment(V(118, 5, 0), V(118, 0, 0)), False)
sketch8.addGeometry(Part.LineSegment(V(118, 0, 0), V(132, 0, 0)), False)
sketch8.addGeometry(Part.LineSegment(V(20, 0, 0), V(5, 0, 0)), False)
sketch8.addGeometry(Part.LineSegment(V(5, 0, 0), V(5, -152, 0)), False)
sketch8.addGeometry(Part.LineSegment(V(5, -152, 0), V(20, -152, 0)), False)
sketch8.addGeometry(Part.LineSegment(V(20, -152, 0), V(20, 0, 0)), False)
sketch8.addConstraint(Sketcher.Constraint("Coincident", 0, 2, 1, 1))
sketch8.addConstraint(Sketcher.Constraint("Coincident", 1, 2, 2, 1))
sketch8.addConstraint(Sketcher.Constraint("Coincident", 2, 2, 3, 1))
sketch8.addConstraint(Sketcher.Constraint("Coincident", 3, 2, 0, 1))
sketch8.addConstraint(Sketcher.Constraint("Coincident", 4, 2, 5, 1))
sketch8.addConstraint(Sketcher.Constraint("Coincident", 5, 2, 6, 1))
sketch8.addConstraint(Sketcher.Constraint("Coincident", 6, 2, 7, 1))
sketch8.addConstraint(Sketcher.Constraint("Coincident", 7, 2, 4, 1))
sketch8.addConstraint(Sketcher.Constraint("Coincident", 8, 2, 9, 1))
sketch8.addConstraint(Sketcher.Constraint("Coincident", 9, 2, 10, 1))
sketch8.addConstraint(Sketcher.Constraint("Coincident", 10, 2, 11, 1))
sketch8.addConstraint(Sketcher.Constraint("Coincident", 11, 2, 8, 1))
sketch8.addConstraint(Sketcher.Constraint("Coincident", 12, 2, 13, 1))
sketch8.addConstraint(Sketcher.Constraint("Coincident", 13, 2, 14, 1))
sketch8.addConstraint(Sketcher.Constraint("Coincident", 14, 2, 15, 1))
sketch8.addConstraint(Sketcher.Constraint("Coincident", 15, 2, 12, 1))
sketch8.addConstraint(Sketcher.Constraint("Horizontal", 0))
sketch8.addConstraint(Sketcher.Constraint("Vertical", 1))
sketch8.addConstraint(Sketcher.Constraint("Horizontal", 2))
sketch8.addConstraint(Sketcher.Constraint("Vertical", 3))
sketch8.addConstraint(Sketcher.Constraint("Vertical", 4))
sketch8.addConstraint(Sketcher.Constraint("Horizontal", 5))
sketch8.addConstraint(Sketcher.Constraint("Vertical", 6))
sketch8.addConstraint(Sketcher.Constraint("Horizontal", 7))
sketch8.addConstraint(Sketcher.Constraint("Vertical", 8))
sketch8.addConstraint(Sketcher.Constraint("Horizontal", 9))
sketch8.addConstraint(Sketcher.Constraint("Vertical", 10))
sketch8.addConstraint(Sketcher.Constraint("Horizontal", 11))
sketch8.addConstraint(Sketcher.Constraint("Horizontal", 12))
sketch8.addConstraint(Sketcher.Constraint("Vertical", 13))
sketch8.addConstraint(Sketcher.Constraint("Horizontal", 14))
sketch8.addConstraint(Sketcher.Constraint("Vertical", 15))
sketch8.addConstraint(Sketcher.Constraint("PointOnObject", 1, 2, -1))
sketch8.addConstraint(Sketcher.Constraint("PointOnObject", 6, 2, -1))
sketch8.addConstraint(Sketcher.Constraint("PointOnObject", 10, 2, -1))
sketch8.addConstraint(Sketcher.Constraint("PointOnObject", 12, 2, -1))
sketch8.addConstraint(Sketcher.Constraint("Horizontal", 5, 2, 8, 2))
sketch8.addConstraint(Sketcher.Constraint("Horizontal", 3, 2, 13, 2))
sketch8.addConstraint(Sketcher.Constraint("Equal", 2, 5))
sketch8.addConstraint(Sketcher.Constraint("Equal", 7, 9))
sketch8.addConstraint(Sketcher.Constraint("Equal", 11, 12))
sketch8.addConstraint(Sketcher.Constraint("DistanceX", 0, 1, 0, 2, 15.0))
sketch8.addConstraint(Sketcher.Constraint("DistanceY", 1, 1, 1, 2, 152.0))
sketch8.addConstraint(Sketcher.Constraint("DistanceY", 4, 1, 4, 2, 5.0))
sketch8.addConstraint(Sketcher.Constraint("DistanceX", -1, 1, 0, 2, 360.0))
sketch8.addConstraint(Sketcher.Constraint("DistanceX", -1, 1, 12, 2, 5.0))
sketch8.addConstraint(Sketcher.Constraint("DistanceX", 8, 2, 5, 2, 95.0))
sketch8.addConstraint(Sketcher.Constraint("DistanceX", -1, 1, 4, 2, 242.5))
pad5 = body.newObject("PartDesign::Pad", "Pad004")
pad5.Profile = sketch8
pad5.Length = 3

# Sketch on XZ plane
sketch9 = body.newObject("Sketcher::SketchObject", "Sketch008")
sketch9.AttachmentSupport = (doc.getObject("XZ_Plane"), [""])
sketch9.MapMode = "FlatFace"
sketch9.AttachmentOffset = App.Placement(V(0, 0, -345), App.Rotation())
sketch9.addGeometry(Part.LineSegment(V(108, 0, 0), V(107, 0, 0)), False)
sketch9.addGeometry(Part.LineSegment(V(107, 0, 0), V(107, -152, 0)), False)
sketch9.addGeometry(Part.LineSegment(V(107, -152, 0), V(108, -152, 0)), False)
sketch9.addGeometry(Part.LineSegment(V(108, -152, 0), V(108, 0, 0)), False)
sketch9.addConstraint(Sketcher.Constraint("Coincident", 0, 2, 1, 1))
sketch9.addConstraint(Sketcher.Constraint("Coincident", 1, 2, 2, 1))
sketch9.addConstraint(Sketcher.Constraint("Coincident", 2, 2, 3, 1))
sketch9.addConstraint(Sketcher.Constraint("Coincident", 3, 2, 0, 1))
sketch9.addConstraint(Sketcher.Constraint("Horizontal", 0))
sketch9.addConstraint(Sketcher.Constraint("Vertical", 1))
sketch9.addConstraint(Sketcher.Constraint("Horizontal", 2))
sketch9.addConstraint(Sketcher.Constraint("Vertical", 3))
sketch9.addConstraint(Sketcher.Constraint("PointOnObject", 0, 2, -1))
sketch9.addConstraint(Sketcher.Constraint("DistanceX", 0, 2, 0, 1, 1.0))
sketch9.addConstraint(Sketcher.Constraint("DistanceY", 1, 2, 1, 1, 152.0))
sketch9.addConstraint(Sketcher.Constraint("DistanceX", -1, 1, 0, 2, 107.0))
pocket4 = body.newObject("PartDesign::Pocket", "Pocket003")
pocket4.Profile = sketch9
pocket4.Length = 5

# Sketch on XZ plane
sketch10 = body.newObject("Sketcher::SketchObject", "Sketch009")
sketch10.AttachmentSupport = (doc.getObject("XZ_Plane"), [""])
sketch10.MapMode = "FlatFace"
sketch10.AttachmentOffset = App.Placement(V(0, 0, -20), App.Rotation())
sketch10.addGeometry(Part.LineSegment(V(107, 0, 0), V(108, 0, 0)), False)
sketch10.addGeometry(Part.LineSegment(V(108, 0, 0), V(108, -152, 0)), False)
sketch10.addGeometry(Part.LineSegment(V(108, -152, 0), V(107, -152, 0)), False)
sketch10.addGeometry(Part.LineSegment(V(107, -152, 0), V(107, 0, 0)), False)
sketch10.addConstraint(Sketcher.Constraint("Coincident", 0, 2, 1, 1))
sketch10.addConstraint(Sketcher.Constraint("Coincident", 1, 2, 2, 1))
sketch10.addConstraint(Sketcher.Constraint("Coincident", 2, 2, 3, 1))
sketch10.addConstraint(Sketcher.Constraint("Coincident", 3, 2, 0, 1))
sketch10.addConstraint(Sketcher.Constraint("Horizontal", 0))
sketch10.addConstraint(Sketcher.Constraint("Vertical", 1))
sketch10.addConstraint(Sketcher.Constraint("Horizontal", 2))
sketch10.addConstraint(Sketcher.Constraint("Vertical", 3))
sketch10.addConstraint(Sketcher.Constraint("PointOnObject", 0, 2, -1))
sketch10.addConstraint(Sketcher.Constraint("DistanceX", 0, 1, 0, 2, 1.0))
sketch10.addConstraint(Sketcher.Constraint("DistanceY", 1, 2, 1, 1, 152.0))
sketch10.addConstraint(Sketcher.Constraint("DistanceX", -1, 1, 0, 2, 108.0))
pocket5 = body.newObject("PartDesign::Pocket", "Pocket004")
pocket5.Profile = sketch10
pocket5.Length = 5
pocket5.Reversed = True
doc.recompute()

datumplane = body.newObject("PartDesign::Plane", "DatumPlane")
datumplane.AttachmentSupport = (doc.getObject("YZ_Plane"), [""])
datumplane.MapMode = "FlatFace"
datumplane.AttachmentOffset = App.Placement(V(0, 0, -50), App.Rotation())
mirrored = body.newObject("PartDesign::Mirrored", "Mirrored")
mirrored.Originals = [pad5]
mirrored.MirrorPlane = (datumplane, [""])
body.Tip = mirrored

# Sketch on XZ plane
sketch11 = body.newObject("Sketcher::SketchObject", "Sketch010")
sketch11.AttachmentSupport = (doc.getObject("XZ_Plane"), [""])
sketch11.MapMode = "FlatFace"
sketch11.AttachmentOffset = App.Placement(V(0, 0, -20), App.Rotation())
sketch11.addGeometry(Part.LineSegment(V(-207, -152, 0), V(-208, -152, 0)), False)
sketch11.addGeometry(Part.LineSegment(V(-208, -152, 0), V(-208, 0, 0)), False)
sketch11.addGeometry(Part.LineSegment(V(-208, 0, 0), V(-207, 0, 0)), False)
sketch11.addGeometry(Part.LineSegment(V(-207, 0, 0), V(-207, -152, 0)), False)
sketch11.addConstraint(Sketcher.Constraint("Coincident", 0, 2, 1, 1))
sketch11.addConstraint(Sketcher.Constraint("Coincident", 1, 2, 2, 1))
sketch11.addConstraint(Sketcher.Constraint("Coincident", 2, 2, 3, 1))
sketch11.addConstraint(Sketcher.Constraint("Coincident", 3, 2, 0, 1))
sketch11.addConstraint(Sketcher.Constraint("Horizontal", 0))
sketch11.addConstraint(Sketcher.Constraint("Vertical", 1))
sketch11.addConstraint(Sketcher.Constraint("Horizontal", 2))
sketch11.addConstraint(Sketcher.Constraint("Vertical", 3))
sketch11.addConstraint(Sketcher.Constraint("PointOnObject", 1, 2, -1))
sketch11.addConstraint(Sketcher.Constraint("DistanceX", 0, 2, 0, 1, 1.0))
sketch11.addConstraint(Sketcher.Constraint("DistanceY", 1, 1, 1, 2, 152.0))
sketch11.addConstraint(Sketcher.Constraint("DistanceX", 0, 2, -1, 1, 208.0))
pocket6 = body.newObject("PartDesign::Pocket", "Pocket005")
pocket6.Profile = sketch11
pocket6.Length = 5
pocket6.Reversed = True

# Sketch on XZ plane
sketch12 = body.newObject("Sketcher::SketchObject", "Sketch011")
sketch12.AttachmentSupport = (doc.getObject("XZ_Plane"), [""])
sketch12.MapMode = "FlatFace"
sketch12.AttachmentOffset = App.Placement(V(0, 0, -345), App.Rotation())
sketch12.addGeometry(Part.LineSegment(V(-208, -152, 0), V(-207, -152, 0)), False)
sketch12.addGeometry(Part.LineSegment(V(-207, -152, 0), V(-207, 0, 0)), False)
sketch12.addGeometry(Part.LineSegment(V(-207, 0, 0), V(-208, 0, 0)), False)
sketch12.addGeometry(Part.LineSegment(V(-208, 0, 0), V(-208, -152, 0)), False)
sketch12.addConstraint(Sketcher.Constraint("Coincident", 0, 2, 1, 1))
sketch12.addConstraint(Sketcher.Constraint("Coincident", 1, 2, 2, 1))
sketch12.addConstraint(Sketcher.Constraint("Coincident", 2, 2, 3, 1))
sketch12.addConstraint(Sketcher.Constraint("Coincident", 3, 2, 0, 1))
sketch12.addConstraint(Sketcher.Constraint("Horizontal", 0))
sketch12.addConstraint(Sketcher.Constraint("Vertical", 1))
sketch12.addConstraint(Sketcher.Constraint("Horizontal", 2))
sketch12.addConstraint(Sketcher.Constraint("Vertical", 3))
sketch12.addConstraint(Sketcher.Constraint("PointOnObject", 1, 2, -1))
sketch12.addConstraint(Sketcher.Constraint("DistanceX", 0, 1, 0, 2, 1.0))
sketch12.addConstraint(Sketcher.Constraint("DistanceY", 1, 1, 1, 2, 152.0))
sketch12.addConstraint(Sketcher.Constraint("DistanceX", 0, 2, -1, 1, 207.0))
pocket7 = body.newObject("PartDesign::Pocket", "Pocket006")
pocket7.Profile = sketch12
pocket7.Length = 5

doc.recompute()
